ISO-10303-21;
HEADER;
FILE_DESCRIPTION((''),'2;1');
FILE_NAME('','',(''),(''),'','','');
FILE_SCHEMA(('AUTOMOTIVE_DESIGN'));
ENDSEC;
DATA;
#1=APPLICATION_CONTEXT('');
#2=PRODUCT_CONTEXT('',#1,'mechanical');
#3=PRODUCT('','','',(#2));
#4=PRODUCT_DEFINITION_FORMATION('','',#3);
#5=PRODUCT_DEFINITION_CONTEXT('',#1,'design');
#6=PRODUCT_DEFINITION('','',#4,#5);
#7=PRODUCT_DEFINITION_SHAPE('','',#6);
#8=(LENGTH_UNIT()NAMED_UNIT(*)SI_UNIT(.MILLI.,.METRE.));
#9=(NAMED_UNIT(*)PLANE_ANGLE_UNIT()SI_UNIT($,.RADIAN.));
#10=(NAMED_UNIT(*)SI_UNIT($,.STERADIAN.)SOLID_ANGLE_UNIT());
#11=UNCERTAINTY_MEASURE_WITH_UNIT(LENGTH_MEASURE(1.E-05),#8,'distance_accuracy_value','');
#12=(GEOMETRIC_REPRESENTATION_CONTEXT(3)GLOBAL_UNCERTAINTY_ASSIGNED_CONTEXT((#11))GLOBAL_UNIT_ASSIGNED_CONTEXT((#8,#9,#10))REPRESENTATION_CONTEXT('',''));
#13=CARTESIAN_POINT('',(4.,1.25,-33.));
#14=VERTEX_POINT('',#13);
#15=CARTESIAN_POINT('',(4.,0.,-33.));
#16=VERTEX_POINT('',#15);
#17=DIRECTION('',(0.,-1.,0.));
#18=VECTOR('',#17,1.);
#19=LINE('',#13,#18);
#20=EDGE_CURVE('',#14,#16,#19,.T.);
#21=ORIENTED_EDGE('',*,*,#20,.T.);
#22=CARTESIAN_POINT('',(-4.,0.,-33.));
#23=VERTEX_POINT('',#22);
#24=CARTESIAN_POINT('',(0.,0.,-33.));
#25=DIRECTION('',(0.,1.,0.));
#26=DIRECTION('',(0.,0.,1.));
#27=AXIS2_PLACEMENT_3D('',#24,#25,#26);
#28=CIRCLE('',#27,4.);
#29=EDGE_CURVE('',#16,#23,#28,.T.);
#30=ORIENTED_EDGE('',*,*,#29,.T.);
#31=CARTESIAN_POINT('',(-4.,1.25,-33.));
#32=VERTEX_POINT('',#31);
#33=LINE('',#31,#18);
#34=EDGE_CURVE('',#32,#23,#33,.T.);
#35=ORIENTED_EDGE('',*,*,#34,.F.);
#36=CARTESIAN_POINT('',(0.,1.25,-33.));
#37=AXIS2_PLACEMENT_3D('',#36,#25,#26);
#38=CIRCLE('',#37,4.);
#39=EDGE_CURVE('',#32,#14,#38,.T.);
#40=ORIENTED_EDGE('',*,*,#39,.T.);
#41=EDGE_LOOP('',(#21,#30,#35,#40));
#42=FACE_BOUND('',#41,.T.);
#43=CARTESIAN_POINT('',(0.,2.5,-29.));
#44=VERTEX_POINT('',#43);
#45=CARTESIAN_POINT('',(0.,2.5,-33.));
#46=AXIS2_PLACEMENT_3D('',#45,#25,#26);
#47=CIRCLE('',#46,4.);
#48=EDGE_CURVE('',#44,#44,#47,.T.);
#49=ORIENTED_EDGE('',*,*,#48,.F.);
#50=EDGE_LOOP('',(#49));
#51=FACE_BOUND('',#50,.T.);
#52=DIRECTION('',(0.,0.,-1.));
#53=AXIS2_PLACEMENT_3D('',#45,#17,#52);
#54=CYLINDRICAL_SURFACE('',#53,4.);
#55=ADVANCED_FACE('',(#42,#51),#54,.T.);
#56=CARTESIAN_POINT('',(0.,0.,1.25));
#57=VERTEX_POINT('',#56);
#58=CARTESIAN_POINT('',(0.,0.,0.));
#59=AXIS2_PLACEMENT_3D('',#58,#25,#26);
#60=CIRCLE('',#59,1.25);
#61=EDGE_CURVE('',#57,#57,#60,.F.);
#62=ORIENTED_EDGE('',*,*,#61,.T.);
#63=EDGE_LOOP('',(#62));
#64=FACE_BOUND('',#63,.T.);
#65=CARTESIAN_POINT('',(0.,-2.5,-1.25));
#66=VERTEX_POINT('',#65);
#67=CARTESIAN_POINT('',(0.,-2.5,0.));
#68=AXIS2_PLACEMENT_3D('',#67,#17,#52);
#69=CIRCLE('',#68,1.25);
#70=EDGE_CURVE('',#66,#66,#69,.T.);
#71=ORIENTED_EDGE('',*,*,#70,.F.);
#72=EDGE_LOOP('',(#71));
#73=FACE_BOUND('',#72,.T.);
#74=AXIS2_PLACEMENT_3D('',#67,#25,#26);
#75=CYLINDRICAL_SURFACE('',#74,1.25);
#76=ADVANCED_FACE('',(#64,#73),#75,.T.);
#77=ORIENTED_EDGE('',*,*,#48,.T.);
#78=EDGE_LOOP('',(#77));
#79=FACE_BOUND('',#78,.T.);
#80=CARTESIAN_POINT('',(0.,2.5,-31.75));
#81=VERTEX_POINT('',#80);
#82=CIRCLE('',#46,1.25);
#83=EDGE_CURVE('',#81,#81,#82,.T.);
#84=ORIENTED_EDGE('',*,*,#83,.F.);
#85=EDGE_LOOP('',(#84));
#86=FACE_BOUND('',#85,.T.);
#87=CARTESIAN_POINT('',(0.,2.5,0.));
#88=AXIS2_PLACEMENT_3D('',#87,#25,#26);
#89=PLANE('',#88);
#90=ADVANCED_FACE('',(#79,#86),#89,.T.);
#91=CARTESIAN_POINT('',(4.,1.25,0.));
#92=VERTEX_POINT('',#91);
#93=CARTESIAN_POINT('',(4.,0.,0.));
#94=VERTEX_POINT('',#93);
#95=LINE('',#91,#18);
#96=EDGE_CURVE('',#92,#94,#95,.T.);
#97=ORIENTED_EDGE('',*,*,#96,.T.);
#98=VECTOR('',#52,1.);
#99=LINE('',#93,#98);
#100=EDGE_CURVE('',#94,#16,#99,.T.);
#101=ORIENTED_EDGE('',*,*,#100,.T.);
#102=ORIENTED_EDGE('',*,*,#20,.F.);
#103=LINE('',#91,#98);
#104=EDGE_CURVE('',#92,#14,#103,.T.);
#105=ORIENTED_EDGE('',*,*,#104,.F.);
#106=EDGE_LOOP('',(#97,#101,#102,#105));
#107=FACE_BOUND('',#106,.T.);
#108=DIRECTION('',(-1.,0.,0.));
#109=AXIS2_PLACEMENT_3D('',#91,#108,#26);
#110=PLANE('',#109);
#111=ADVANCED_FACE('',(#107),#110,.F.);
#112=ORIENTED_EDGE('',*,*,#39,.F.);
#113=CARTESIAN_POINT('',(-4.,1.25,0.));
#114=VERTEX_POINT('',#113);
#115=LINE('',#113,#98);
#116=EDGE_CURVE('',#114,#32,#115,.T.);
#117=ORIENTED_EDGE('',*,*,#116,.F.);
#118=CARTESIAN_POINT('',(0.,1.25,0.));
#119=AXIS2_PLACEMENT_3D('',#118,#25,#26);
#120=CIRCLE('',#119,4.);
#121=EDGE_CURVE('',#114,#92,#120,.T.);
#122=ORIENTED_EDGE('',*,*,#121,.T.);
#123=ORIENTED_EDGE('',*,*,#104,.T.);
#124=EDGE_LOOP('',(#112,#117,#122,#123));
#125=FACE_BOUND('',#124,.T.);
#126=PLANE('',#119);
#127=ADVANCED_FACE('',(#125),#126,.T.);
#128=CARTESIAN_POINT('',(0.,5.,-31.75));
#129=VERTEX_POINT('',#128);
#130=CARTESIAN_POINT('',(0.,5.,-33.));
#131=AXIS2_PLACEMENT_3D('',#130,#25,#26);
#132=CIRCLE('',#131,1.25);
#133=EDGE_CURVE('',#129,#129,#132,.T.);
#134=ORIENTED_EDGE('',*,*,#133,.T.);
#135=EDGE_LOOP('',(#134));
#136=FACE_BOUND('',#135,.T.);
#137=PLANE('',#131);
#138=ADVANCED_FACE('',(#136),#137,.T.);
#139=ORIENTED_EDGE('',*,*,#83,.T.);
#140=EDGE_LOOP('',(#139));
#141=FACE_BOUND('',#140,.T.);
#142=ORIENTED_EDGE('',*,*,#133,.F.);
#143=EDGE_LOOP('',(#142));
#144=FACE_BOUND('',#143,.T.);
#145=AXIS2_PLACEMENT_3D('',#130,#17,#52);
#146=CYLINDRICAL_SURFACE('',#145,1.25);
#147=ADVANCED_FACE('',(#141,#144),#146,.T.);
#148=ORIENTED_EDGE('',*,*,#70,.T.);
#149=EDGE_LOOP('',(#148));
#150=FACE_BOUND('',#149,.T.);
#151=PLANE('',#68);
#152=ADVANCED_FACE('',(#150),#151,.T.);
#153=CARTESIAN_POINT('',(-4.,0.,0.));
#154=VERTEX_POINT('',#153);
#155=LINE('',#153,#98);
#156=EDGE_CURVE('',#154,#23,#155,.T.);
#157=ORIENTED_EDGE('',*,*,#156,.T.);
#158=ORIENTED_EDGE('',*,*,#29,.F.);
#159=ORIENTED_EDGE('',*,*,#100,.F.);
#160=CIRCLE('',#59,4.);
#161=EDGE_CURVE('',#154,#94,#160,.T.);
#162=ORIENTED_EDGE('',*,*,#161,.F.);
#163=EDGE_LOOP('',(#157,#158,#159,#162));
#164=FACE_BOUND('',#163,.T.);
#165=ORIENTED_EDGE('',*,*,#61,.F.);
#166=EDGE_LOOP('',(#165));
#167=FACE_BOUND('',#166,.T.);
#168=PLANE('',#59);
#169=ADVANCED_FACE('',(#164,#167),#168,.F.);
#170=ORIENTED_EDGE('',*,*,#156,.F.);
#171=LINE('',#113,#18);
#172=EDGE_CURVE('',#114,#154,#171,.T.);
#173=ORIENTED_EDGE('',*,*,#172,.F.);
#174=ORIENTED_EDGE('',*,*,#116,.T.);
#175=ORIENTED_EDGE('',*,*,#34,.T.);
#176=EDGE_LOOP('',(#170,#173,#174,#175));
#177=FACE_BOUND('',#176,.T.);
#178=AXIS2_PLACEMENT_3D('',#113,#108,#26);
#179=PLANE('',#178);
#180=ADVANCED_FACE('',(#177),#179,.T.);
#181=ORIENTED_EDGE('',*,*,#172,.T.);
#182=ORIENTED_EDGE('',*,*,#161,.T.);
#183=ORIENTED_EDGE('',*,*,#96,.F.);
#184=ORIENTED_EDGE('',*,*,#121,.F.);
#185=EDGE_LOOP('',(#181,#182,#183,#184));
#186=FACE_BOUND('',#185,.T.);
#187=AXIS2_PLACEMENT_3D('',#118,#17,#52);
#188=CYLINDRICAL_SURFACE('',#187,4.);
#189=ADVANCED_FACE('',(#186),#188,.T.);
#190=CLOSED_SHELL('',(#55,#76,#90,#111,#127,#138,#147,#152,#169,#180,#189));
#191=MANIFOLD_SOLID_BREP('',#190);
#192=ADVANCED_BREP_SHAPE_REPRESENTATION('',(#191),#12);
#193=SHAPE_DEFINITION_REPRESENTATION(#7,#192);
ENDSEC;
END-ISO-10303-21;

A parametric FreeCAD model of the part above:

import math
import FreeCAD as App
import Part
import Sketcher
from FreeCAD import Vector

doc = App.newDocument("Part")
body = doc.addObject("PartDesign::Body", "Body")

# Sketch on XZ plane
sketch1 = doc.addObject("Sketcher::SketchObject", "Sketch")
body.addObject(sketch1)
sketch1.AttachmentSupport = (doc.XZ_Plane, [""])
sketch1.MapMode = "FlatFace"
sketch1.addGeometry(Part.Circle(Vector(0, -33, 0), Vector(0, 0, 1), 4), False)
sketch1.addConstraint([
    Sketcher.Constraint("PointOnObject", 0, 3, -2),
    Sketcher.Constraint("Diameter", 0, 8.0),
    Sketcher.Constraint("DistanceY", 0, 3, -1, 1, 33.0),
])
pad1 = doc.addObject("PartDesign::Pad", "Pad")
body.addObject(pad1)
pad1.Profile = sketch1
pad1.Length = 2.5
pad1.Reversed = True

# Sketch on XZ plane
sketch2 = doc.addObject("Sketcher::SketchObject", "Sketch001")
body.addObject(sketch2)
sketch2.AttachmentSupport = (doc.XZ_Plane, [""])
sketch2.MapMode = "FlatFace"
sketch2.addGeometry([
    Part.LineSegment(Vector(-4, -33, 0), Vector(-4, 0, 0)),
    Part.ArcOfCircle(Part.Circle(Vector(0, 0, 0), Vector(0, 0, 1), 4), math.radians(0), math.radians(180)),
    Part.LineSegment(Vector(4, 0, 0), Vector(4, -33, 0)),
    Part.ArcOfCircle(Part.Circle(Vector(0, -33, 0), Vector(0, 0, 1), 4), math.radians(0), math.radians(180)),
], False)
sketch2.addConstraint([
    Sketcher.Constraint("Tangent", 0, 2, 1, 2),
    Sketcher.Constraint("Tangent", 1, 1, 2, 1),
    Sketcher.Constraint("Tangent", 2, 2, 3, 1),
    Sketcher.Constraint("Tangent", 3, 2, 0, 1),
    Sketcher.Constraint("Vertical", 0),
    Sketcher.Constraint("Vertical", 2),
    Sketcher.Constraint("Coincident", 1, 3, -1, 1),
    Sketcher.Constraint("Radius", 1, 4.0),
    Sketcher.Constraint("DistanceY", 0, 1, 0, 2, 33.0),
])
pad2 = doc.addObject("PartDesign::Pad", "Pad001")
body.addObject(pad2)
pad2.Profile = sketch2
pad2.Length = 1.25
pad2.Reversed = True

# Sketch on XZ plane
sketch3 = doc.addObject("Sketcher::SketchObject", "Sketch002")
body.addObject(sketch3)
sketch3.AttachmentSupport = (doc.XZ_Plane, [""])
sketch3.MapMode = "FlatFace"
sketch3.AttachmentOffset = App.Placement(Vector(0, 0, -2.5), App.Rotation())
sketch3.addGeometry(Part.Circle(Vector(0, -33, 0), Vector(0, 0, 1), 1.25), False)
sketch3.addConstraint([
    Sketcher.Constraint("PointOnObject", 0, 3, -2),
    Sketcher.Constraint("Diameter", 0, 2.5),
    Sketcher.Constraint("DistanceY", 0, 3, -1, 1, 33.0),
])
pad3 = doc.addObject("PartDesign::Pad", "Pad002")
body.addObject(pad3)
pad3.Profile = sketch3
pad3.Length = 2.5
pad3.Reversed = True

# Sketch on XZ plane
sketch4 = doc.addObject("Sketcher::SketchObject", "Sketch003")
body.addObject(sketch4)
sketch4.AttachmentSupport = (doc.XZ_Plane, [""])
sketch4.MapMode = "FlatFace"
sketch4.addGeometry(Part.Circle(Vector(0, 0, 0), Vector(0, 0, 1), 1.25), False)
sketch4.addConstraint([
    Sketcher.Constraint("Coincident", 0, 3, -1, 1),
    Sketcher.Constraint("Diameter", 0, 2.5),
])
pad4 = doc.addObject("PartDesign::Pad", "Pad003")
body.addObject(pad4)
pad4.Profile = sketch4
pad4.Length = 2.5

doc.recompute()
